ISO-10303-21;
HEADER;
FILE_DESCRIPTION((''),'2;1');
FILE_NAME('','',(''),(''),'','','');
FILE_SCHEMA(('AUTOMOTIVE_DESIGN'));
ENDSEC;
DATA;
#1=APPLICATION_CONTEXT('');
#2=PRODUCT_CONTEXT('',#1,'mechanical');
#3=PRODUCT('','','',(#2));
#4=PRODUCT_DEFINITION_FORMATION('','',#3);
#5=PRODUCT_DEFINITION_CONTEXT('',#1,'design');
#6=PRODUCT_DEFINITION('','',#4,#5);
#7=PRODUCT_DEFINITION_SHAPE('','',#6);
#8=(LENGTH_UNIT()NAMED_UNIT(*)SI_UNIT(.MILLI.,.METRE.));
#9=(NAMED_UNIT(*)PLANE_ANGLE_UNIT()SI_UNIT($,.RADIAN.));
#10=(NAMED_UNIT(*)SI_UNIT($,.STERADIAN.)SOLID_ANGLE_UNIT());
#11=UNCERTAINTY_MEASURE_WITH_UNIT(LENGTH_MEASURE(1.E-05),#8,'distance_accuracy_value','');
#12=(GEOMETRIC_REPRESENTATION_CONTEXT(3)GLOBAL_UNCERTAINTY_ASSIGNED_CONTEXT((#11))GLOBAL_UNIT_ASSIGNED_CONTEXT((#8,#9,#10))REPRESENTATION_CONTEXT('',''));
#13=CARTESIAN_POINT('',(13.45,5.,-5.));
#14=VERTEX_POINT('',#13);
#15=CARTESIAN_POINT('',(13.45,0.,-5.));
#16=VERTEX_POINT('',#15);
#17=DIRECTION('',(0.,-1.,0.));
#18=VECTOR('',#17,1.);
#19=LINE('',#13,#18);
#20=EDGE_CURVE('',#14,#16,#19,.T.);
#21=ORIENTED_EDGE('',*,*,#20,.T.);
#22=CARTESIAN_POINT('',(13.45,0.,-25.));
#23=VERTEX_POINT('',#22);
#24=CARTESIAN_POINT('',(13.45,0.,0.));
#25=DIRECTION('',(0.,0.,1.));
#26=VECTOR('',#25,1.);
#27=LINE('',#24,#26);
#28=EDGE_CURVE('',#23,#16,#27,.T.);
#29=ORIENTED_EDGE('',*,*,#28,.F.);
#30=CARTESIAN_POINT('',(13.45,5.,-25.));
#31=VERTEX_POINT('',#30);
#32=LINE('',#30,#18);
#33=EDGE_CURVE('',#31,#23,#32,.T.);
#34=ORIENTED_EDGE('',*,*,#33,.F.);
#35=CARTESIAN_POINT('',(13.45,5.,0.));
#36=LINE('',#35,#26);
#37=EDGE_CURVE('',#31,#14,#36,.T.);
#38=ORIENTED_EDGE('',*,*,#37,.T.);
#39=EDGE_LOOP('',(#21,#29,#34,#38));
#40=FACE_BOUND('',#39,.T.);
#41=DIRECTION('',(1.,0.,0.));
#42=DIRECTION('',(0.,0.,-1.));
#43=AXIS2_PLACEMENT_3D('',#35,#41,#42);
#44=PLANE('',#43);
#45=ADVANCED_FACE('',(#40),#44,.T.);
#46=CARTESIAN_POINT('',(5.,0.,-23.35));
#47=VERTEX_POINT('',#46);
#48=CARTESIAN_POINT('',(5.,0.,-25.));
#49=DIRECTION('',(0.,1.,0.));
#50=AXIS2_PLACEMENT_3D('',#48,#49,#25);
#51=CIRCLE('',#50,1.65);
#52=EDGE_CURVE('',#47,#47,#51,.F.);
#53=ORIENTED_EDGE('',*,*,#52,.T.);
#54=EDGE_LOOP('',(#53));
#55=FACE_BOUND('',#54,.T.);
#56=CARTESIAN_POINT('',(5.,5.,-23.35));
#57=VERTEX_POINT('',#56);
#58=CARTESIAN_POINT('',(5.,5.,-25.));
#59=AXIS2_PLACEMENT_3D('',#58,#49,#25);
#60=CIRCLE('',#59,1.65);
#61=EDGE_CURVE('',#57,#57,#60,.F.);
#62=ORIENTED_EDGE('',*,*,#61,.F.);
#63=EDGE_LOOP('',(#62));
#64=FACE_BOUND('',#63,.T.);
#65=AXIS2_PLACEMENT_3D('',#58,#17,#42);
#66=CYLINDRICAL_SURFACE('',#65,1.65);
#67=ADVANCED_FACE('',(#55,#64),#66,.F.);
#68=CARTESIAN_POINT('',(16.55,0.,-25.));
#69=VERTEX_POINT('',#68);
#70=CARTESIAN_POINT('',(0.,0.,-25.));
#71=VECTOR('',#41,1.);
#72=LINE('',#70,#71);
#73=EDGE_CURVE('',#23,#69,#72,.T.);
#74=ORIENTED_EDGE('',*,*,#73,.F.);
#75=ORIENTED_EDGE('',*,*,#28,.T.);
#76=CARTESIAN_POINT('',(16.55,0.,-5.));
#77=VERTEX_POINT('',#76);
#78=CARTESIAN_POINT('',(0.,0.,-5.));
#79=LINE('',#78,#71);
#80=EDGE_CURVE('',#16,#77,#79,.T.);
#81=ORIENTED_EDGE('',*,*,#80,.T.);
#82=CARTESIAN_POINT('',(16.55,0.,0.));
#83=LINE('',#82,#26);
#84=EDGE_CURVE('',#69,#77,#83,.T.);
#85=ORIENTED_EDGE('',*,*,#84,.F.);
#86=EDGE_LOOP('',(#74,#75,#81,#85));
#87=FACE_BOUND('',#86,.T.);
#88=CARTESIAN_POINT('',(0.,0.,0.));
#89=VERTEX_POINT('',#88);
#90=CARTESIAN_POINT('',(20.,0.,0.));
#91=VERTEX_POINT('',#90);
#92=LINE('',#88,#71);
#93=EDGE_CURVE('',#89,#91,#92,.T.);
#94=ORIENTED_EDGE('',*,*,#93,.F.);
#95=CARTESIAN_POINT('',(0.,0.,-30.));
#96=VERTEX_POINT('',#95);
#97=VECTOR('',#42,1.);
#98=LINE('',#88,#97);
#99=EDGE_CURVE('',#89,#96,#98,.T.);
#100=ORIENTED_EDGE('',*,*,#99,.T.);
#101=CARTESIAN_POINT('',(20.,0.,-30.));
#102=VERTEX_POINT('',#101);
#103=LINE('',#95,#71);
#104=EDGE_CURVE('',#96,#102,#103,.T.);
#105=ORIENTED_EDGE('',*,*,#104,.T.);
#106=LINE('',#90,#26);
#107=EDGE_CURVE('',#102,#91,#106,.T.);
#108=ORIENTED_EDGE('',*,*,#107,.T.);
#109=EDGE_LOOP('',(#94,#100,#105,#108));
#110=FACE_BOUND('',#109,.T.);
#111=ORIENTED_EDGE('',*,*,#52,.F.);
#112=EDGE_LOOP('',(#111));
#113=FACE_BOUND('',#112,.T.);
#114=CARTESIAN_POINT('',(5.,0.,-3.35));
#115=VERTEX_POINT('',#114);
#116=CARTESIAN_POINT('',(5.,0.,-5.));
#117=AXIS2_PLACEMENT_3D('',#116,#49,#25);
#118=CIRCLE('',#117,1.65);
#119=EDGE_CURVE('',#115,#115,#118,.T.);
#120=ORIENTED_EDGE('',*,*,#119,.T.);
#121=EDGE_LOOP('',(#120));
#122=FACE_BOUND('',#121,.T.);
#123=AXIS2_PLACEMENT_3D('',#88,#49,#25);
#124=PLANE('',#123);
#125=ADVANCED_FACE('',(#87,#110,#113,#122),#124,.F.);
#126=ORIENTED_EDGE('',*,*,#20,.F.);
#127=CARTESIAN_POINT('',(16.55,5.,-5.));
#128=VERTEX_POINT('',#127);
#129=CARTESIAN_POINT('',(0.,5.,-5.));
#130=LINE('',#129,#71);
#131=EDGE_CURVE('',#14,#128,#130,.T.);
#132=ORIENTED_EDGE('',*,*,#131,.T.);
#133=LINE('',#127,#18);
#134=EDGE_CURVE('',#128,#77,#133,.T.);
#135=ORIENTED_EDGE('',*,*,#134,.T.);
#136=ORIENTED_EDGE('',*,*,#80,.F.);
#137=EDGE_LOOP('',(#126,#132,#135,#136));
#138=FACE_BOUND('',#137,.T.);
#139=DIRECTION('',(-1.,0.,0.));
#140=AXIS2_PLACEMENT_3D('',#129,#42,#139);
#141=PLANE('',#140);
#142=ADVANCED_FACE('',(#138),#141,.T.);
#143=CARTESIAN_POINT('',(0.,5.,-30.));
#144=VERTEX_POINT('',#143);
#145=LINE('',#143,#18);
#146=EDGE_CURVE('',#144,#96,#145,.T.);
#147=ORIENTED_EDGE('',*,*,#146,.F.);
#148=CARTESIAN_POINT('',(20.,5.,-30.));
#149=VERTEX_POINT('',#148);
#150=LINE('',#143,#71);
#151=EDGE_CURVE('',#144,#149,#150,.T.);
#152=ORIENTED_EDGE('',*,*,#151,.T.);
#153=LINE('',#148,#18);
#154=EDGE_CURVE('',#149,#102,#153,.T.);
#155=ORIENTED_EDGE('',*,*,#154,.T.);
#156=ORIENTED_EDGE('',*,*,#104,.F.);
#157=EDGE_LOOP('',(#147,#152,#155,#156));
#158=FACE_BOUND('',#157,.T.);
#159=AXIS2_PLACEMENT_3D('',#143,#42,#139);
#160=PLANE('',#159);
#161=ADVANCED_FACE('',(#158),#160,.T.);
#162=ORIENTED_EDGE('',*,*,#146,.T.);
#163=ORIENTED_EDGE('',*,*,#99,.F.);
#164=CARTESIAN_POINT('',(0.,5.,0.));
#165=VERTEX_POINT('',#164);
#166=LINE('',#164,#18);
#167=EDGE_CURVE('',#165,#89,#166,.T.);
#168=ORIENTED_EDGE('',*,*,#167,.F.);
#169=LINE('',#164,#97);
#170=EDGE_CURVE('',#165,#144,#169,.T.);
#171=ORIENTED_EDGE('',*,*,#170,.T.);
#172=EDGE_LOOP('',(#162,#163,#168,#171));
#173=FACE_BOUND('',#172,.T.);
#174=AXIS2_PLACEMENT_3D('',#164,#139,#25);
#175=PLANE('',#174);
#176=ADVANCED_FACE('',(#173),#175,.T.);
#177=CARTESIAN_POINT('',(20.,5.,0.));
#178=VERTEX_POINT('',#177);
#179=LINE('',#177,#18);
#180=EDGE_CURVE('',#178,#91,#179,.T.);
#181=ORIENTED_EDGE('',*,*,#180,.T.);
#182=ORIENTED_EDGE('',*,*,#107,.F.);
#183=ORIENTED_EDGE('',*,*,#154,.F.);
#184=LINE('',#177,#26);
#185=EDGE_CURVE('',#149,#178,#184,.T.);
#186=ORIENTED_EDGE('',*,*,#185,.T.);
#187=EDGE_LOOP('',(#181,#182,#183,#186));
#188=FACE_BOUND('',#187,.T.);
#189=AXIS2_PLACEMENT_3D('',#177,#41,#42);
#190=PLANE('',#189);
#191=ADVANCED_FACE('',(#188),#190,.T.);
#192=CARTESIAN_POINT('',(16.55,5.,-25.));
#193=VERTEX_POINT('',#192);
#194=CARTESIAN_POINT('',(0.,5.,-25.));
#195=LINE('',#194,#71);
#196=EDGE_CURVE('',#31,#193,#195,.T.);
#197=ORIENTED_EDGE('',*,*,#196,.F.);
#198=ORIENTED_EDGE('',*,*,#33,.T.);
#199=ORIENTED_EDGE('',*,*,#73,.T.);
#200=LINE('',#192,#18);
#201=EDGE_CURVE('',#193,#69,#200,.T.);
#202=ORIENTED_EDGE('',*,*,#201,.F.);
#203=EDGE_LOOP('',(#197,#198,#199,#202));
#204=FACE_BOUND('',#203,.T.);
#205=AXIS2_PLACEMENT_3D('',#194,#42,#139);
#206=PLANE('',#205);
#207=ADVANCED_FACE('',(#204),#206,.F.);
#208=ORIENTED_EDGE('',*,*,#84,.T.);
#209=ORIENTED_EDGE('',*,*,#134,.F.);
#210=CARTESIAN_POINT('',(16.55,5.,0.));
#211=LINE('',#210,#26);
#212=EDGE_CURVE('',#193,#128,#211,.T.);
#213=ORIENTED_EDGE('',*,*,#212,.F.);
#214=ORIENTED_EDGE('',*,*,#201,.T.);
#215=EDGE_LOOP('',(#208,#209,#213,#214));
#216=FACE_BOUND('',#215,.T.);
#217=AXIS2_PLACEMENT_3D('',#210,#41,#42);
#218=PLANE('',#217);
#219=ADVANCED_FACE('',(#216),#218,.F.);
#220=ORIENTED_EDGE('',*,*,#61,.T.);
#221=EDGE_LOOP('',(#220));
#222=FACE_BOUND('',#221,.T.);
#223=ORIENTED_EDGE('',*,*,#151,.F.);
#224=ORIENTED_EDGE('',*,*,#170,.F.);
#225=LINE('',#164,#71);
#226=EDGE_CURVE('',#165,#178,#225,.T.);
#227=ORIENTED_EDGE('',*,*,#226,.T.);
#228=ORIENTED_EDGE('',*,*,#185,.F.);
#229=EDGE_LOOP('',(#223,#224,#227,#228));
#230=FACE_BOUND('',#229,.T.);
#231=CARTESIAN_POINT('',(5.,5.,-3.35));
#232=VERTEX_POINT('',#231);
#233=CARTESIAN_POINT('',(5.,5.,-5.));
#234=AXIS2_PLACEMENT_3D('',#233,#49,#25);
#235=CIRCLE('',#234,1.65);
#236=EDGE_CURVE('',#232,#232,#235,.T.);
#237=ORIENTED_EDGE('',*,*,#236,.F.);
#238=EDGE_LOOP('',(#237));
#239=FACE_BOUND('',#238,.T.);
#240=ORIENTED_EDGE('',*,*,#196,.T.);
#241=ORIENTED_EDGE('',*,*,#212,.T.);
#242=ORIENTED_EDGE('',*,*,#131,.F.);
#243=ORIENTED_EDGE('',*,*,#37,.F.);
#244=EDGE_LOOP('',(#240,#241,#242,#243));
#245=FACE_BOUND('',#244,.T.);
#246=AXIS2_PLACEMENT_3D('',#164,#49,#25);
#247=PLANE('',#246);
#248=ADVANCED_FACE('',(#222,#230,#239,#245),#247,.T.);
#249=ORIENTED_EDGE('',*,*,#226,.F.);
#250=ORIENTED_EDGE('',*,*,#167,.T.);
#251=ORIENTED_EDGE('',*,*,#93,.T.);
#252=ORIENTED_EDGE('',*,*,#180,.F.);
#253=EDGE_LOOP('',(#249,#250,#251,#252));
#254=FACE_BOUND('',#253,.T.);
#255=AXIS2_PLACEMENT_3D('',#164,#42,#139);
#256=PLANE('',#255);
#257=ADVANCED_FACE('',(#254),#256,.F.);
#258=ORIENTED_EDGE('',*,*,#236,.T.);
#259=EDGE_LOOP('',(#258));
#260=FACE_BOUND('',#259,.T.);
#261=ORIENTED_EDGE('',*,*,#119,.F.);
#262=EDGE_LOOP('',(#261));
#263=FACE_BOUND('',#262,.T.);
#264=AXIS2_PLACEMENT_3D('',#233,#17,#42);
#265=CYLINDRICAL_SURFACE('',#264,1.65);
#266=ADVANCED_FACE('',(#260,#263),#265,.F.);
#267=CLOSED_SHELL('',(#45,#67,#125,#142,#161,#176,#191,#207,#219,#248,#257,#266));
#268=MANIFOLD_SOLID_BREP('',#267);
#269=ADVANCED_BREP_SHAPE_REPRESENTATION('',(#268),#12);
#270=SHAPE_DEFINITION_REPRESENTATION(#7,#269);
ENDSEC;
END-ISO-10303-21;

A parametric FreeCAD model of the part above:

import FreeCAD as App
import Part
import Sketcher
from FreeCAD import Vector

doc = App.newDocument("Part")
body = doc.addObject("PartDesign::Body", "Body")

# Sketch on XZ plane
sketch1 = doc.addObject("Sketcher::SketchObject", "Sketch")
body.addObject(sketch1)
sketch1.AttachmentSupport = (doc.XZ_Plane, [""])
sketch1.MapMode = "FlatFace"
sketch1.addGeometry(Part.LineSegment(Vector(0, -30, 0), Vector(0, 0, 0)), False)
sketch1.addGeometry(Part.LineSegment(Vector(0, 0, 0), Vector(20, 0, 0)), False)
sketch1.addGeometry(Part.LineSegment(Vector(20, 0, 0), Vector(20, -30, 0)), False)
sketch1.addGeometry(Part.LineSegment(Vector(20, -30, 0), Vector(0, -30, 0)), False)
sketch1.addGeometry(Part.Circle(Vector(5, -25, 0), Vector(0, 0, 1), 1.6), False)
sketch1.addGeometry(Part.Circle(Vector(5, -5, 0), Vector(0, 0, 1), 1.6), False)
sketch1.addGeometry(Part.LineSegment(Vector(13.4, -25, 0), Vector(16.6, -25, 0)), False)
sketch1.addGeometry(Part.LineSegment(Vector(16.6, -25, 0), Vector(16.6, -5, 0)), False)
sketch1.addGeometry(Part.LineSegment(Vector(16.6, -5, 0), Vector(13.4, -5, 0)), False)
sketch1.addGeometry(Part.LineSegment(Vector(13.4, -5, 0), Vector(13.4, -25, 0)), False)
sketch1.addConstraint(Sketcher.Constraint("Coincident", 0, 2, 1, 1))
sketch1.addConstraint(Sketcher.Constraint("Coincident", 1, 2, 2, 1))
sketch1.addConstraint(Sketcher.Constraint("Coincident", 2, 2, 3, 1))
sketch1.addConstraint(Sketcher.Constraint("Coincident", 3, 2, 0, 1))
sketch1.addConstraint(Sketcher.Constraint("Coincident", 6, 2, 7, 1))
sketch1.addConstraint(Sketcher.Constraint("Coincident", 7, 2, 8, 1))
sketch1.addConstraint(Sketcher.Constraint("Coincident", 8, 2, 9, 1))
sketch1.addConstraint(Sketcher.Constraint("Coincident", 9, 2, 6, 1))
sketch1.addConstraint(Sketcher.Constraint("Vertical", 0))
sketch1.addConstraint(Sketcher.Constraint("Horizontal", 1))
sketch1.addConstraint(Sketcher.Constraint("Vertical", 2))
sketch1.addConstraint(Sketcher.Constraint("Horizontal", 3))
sketch1.addConstraint(Sketcher.Constraint("Horizontal", 6))
sketch1.addConstraint(Sketcher.Constraint("Vertical", 7))
sketch1.addConstraint(Sketcher.Constraint("Horizontal", 8))
sketch1.addConstraint(Sketcher.Constraint("Vertical", 9))
sketch1.addConstraint(Sketcher.Constraint("Coincident", 0, 2, -1, 1))
sketch1.addConstraint(Sketcher.Constraint("Equal", 4, 5))
sketch1.addConstraint(Sketcher.Constraint("Horizontal", 4, 3, 6, 2))
sketch1.addConstraint(Sketcher.Constraint("Horizontal", 5, 3, 7, 2))
sketch1.addConstraint(Sketcher.Constraint("Vertical", 4, 3, 5, 3))
sketch1.addConstraint(Sketcher.Constraint("Equal", 3, 7))
sketch1.addConstraint(Sketcher.Constraint("Diameter", 4, 3.3))
sketch1.addConstraint(Sketcher.Constraint("DistanceX", 1, 1, 1, 2, 20.0))
sketch1.addConstraint(Sketcher.Constraint("DistanceY", 0, 1, 0, 2, 30.0))
sketch1.addConstraint(Sketcher.Constraint("DistanceX", 6, 1, 6, 2, 3.1))
sketch1.addConstraint(Sketcher.Constraint("DistanceX", -1, 1, 4, 3, 5.0))
sketch1.addConstraint(Sketcher.Constraint("DistanceY", 4, 3, -1, 1, 25.0))
sketch1.addConstraint(Sketcher.Constraint("DistanceX", -1, 1, 6, 2, 16.55))
pad1 = doc.addObject("PartDesign::Pad", "Pad")
body.addObject(pad1)
pad1.Profile = sketch1
pad1.Length = 5
pad1.Reversed = True

doc.recompute()
